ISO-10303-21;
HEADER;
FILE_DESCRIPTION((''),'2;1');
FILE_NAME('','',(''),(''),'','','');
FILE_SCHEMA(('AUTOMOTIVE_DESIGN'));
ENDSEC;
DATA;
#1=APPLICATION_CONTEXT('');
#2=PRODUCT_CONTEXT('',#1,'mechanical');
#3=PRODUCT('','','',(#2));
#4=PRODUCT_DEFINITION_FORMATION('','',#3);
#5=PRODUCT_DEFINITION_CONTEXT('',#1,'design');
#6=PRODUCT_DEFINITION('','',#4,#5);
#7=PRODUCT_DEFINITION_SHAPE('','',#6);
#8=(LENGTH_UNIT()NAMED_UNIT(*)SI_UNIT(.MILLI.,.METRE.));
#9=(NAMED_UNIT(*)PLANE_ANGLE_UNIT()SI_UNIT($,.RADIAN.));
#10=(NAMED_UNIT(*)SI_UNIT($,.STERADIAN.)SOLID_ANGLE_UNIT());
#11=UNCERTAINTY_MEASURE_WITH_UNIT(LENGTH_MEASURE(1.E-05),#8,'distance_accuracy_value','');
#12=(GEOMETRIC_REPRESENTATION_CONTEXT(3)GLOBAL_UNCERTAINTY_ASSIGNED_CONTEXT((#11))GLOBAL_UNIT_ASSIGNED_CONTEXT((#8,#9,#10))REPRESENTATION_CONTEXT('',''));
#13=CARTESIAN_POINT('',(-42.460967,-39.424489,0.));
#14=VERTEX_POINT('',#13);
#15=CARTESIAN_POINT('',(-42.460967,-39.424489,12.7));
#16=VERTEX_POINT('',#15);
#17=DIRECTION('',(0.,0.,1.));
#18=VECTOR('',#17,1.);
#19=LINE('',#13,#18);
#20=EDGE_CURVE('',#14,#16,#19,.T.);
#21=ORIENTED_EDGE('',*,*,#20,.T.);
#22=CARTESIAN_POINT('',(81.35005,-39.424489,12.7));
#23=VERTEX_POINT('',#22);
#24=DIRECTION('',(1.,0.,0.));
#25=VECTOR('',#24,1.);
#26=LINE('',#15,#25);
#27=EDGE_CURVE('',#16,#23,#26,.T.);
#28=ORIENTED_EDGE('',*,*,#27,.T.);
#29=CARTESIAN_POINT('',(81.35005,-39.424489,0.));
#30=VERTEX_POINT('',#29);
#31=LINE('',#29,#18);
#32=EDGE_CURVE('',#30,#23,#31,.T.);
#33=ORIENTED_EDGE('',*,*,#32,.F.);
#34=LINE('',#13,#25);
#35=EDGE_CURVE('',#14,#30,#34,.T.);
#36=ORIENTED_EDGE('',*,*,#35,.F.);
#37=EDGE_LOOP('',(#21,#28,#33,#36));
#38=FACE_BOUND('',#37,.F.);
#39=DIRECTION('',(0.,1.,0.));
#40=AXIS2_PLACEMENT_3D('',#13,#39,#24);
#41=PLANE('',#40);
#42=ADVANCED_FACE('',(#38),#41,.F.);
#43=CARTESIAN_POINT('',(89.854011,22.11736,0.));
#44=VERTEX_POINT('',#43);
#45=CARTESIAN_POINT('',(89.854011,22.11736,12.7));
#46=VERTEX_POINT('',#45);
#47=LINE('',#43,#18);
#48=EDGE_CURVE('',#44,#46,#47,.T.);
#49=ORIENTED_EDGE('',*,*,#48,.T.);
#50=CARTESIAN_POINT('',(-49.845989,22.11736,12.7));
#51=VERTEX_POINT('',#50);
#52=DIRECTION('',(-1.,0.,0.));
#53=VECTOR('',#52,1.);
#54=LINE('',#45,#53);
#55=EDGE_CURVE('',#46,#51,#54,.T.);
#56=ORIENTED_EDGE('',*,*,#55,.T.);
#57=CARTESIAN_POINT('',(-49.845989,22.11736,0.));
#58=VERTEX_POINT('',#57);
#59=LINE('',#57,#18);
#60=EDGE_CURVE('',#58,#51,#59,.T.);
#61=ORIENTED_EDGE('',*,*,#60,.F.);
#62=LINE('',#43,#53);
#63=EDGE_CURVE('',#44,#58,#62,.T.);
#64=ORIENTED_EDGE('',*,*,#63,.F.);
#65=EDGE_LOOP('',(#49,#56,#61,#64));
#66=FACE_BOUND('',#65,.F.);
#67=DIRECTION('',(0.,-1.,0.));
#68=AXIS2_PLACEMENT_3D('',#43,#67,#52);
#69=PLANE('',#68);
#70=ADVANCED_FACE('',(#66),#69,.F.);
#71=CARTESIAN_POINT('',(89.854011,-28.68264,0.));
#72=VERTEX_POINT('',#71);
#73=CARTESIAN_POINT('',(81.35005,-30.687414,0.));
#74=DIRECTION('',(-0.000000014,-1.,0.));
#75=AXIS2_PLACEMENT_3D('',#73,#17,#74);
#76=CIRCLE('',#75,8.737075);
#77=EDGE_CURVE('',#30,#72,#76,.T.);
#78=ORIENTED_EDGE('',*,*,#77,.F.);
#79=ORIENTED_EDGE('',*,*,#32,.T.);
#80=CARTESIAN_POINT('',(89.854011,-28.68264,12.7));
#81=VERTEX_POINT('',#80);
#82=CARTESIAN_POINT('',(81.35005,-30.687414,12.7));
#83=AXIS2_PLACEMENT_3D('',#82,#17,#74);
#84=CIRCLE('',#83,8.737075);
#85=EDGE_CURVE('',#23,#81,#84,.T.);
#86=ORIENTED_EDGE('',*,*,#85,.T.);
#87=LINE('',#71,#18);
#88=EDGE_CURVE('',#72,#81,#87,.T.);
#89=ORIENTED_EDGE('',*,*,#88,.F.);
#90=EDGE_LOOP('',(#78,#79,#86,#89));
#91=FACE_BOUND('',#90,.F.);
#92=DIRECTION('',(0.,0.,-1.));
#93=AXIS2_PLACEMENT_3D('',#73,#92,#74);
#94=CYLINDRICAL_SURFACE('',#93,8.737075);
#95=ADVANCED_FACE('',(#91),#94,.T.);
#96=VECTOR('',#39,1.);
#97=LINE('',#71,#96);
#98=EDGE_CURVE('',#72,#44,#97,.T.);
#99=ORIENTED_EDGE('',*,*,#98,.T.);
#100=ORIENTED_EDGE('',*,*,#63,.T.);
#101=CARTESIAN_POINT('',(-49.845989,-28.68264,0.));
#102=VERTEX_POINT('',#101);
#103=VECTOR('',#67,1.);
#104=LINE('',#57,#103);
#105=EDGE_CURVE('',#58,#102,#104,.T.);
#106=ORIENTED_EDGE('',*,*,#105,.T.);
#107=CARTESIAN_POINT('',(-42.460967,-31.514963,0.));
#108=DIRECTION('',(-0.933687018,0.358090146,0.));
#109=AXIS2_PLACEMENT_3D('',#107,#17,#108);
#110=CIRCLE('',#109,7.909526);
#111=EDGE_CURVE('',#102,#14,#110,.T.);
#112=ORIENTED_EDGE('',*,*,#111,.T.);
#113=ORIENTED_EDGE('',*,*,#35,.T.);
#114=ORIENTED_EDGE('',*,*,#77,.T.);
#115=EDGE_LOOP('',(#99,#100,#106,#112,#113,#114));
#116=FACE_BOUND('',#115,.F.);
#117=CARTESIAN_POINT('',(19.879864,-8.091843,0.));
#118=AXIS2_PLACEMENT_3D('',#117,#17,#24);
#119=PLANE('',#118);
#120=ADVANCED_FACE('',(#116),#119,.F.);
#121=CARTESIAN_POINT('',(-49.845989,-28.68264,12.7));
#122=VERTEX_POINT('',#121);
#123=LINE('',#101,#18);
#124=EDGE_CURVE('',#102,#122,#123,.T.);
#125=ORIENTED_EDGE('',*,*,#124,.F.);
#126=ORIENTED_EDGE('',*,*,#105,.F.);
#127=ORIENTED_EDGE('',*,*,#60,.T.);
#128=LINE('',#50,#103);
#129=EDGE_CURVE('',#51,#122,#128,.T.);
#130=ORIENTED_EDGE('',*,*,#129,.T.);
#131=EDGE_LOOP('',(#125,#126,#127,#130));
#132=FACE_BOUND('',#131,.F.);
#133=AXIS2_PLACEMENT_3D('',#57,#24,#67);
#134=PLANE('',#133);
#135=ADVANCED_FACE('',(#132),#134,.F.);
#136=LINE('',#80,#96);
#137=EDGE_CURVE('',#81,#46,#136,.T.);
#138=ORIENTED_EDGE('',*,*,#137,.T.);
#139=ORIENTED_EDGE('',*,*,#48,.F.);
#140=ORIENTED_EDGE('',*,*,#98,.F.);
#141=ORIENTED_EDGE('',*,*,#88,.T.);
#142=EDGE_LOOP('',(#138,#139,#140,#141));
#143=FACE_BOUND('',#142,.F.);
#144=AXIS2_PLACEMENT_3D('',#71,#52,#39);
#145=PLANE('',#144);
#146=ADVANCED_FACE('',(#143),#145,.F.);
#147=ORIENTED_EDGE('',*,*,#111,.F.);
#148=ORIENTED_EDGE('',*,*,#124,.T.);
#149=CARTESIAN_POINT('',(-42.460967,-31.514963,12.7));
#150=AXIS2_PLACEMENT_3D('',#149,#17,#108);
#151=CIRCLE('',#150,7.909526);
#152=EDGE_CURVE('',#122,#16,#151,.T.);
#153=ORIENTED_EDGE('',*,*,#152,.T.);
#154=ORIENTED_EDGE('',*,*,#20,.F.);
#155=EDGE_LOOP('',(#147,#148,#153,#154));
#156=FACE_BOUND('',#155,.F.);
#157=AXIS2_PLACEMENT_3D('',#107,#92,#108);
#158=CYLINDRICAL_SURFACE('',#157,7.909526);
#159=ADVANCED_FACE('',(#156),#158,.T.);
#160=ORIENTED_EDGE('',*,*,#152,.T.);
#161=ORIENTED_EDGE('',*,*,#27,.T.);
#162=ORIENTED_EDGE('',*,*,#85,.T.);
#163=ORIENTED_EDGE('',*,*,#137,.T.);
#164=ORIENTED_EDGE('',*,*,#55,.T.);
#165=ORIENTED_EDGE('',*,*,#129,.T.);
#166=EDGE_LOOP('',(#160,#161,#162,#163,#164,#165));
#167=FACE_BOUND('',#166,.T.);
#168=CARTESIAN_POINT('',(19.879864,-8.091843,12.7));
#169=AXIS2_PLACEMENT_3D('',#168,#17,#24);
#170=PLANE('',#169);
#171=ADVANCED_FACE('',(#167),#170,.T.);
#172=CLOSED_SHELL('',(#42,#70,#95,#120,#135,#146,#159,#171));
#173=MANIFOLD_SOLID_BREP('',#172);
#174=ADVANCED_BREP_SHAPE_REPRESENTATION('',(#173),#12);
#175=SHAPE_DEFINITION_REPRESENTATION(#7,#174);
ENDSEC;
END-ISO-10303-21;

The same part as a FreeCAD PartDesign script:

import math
import FreeCAD as App
import Part
import Sketcher
from FreeCAD import Vector
Q = App.Units.Quantity

doc = App.newDocument("Part")
params = doc.addObject("Spreadsheet::Sheet", "Params")
for row, (alias, value) in enumerate([
    ("sketch1_height", "2 in"),
    ("sketch1_width", "5.5 in"),
    ("pad1_length", "0.5 in"),
], start=1):
    params.set(f"A{row}", alias)
    params.set(f"B{row}", "=" + value)
    params.setAlias(f"B{row}", alias)

body = doc.addObject("PartDesign::Body", "Body")

# Sketch on XY plane
sketch1 = doc.addObject("Sketcher::SketchObject", "Sketch")
body.addObject(sketch1)
sketch1.AttachmentSupport = (doc.XY_Plane, [""])
sketch1.MapMode = "FlatFace"
sketch1.addGeometry([
    Part.ArcOfCircle(Part.Circle(Vector(-42, -32, 0), Vector(0, 0, 1), 8), math.radians(159), math.radians(270)),  # 0
    Part.LineSegment(Vector(-42, -39, 0), Vector(81, -39, 0)),  # 1
    Part.ArcOfCircle(Part.Circle(Vector(81, -31, 0), Vector(0, 0, 1), 9), math.radians(-90), math.radians(13)),  # 2
    Part.LineSegment(Vector(90, -29, 0), Vector(90, 22, 0)),  # 3
    Part.LineSegment(Vector(90, 22, 0), Vector(-50, 22, 0)),  # 4
    Part.LineSegment(Vector(-50, 22, 0), Vector(-50, -29, 0)),  # 5
], False)
sketch1.addConstraint([
    Sketcher.Constraint("Tangent", 0, 2, 1, 1),
    Sketcher.Constraint("Tangent", 1, 2, 2, 1),
    Sketcher.Constraint("Coincident", 2, 2, 3, 1),
    Sketcher.Constraint("Coincident", 3, 2, 4, 1),
    Sketcher.Constraint("Coincident", 4, 2, 5, 1),
    Sketcher.Constraint("Coincident", 5, 2, 0, 1),
    Sketcher.Constraint("Horizontal", 1),
    Sketcher.Constraint("Vertical", 3),
    Sketcher.Constraint("Horizontal", 4),
    Sketcher.Constraint("Vertical", 5),
    Sketcher.Constraint("Horizontal", 2, 2, 5, 2),
    Sketcher.Constraint("DistanceY", 3, 1, 3, 2, Q("2 in")),
    Sketcher.Constraint("DistanceX", 4, 2, 4, 1, Q("5.5 in")),
    Sketcher.Constraint("Radius", 0, Q("7.909526 mm")),
    Sketcher.Constraint("Radius", 2, Q("8.737075 mm")),
    Sketcher.Constraint("DistanceX", 1, 1, 1, 2, Q("123.811017 mm")),
    Sketcher.Constraint("DistanceX", -1, 1, 2, 3, Q("81.35005 mm")),
    Sketcher.Constraint("DistanceY", 0, 2, -1, 1, Q("39.424489 mm")),
])
sketch1.setExpression("Constraints[11]", "Params.sketch1_height")
sketch1.setExpression("Constraints[12]", "Params.sketch1_width")
pad1 = doc.addObject("PartDesign::Pad", "Pad")
body.addObject(pad1)
pad1.Profile = sketch1
pad1.setExpression("Length", "Params.pad1_length")

doc.recompute()
